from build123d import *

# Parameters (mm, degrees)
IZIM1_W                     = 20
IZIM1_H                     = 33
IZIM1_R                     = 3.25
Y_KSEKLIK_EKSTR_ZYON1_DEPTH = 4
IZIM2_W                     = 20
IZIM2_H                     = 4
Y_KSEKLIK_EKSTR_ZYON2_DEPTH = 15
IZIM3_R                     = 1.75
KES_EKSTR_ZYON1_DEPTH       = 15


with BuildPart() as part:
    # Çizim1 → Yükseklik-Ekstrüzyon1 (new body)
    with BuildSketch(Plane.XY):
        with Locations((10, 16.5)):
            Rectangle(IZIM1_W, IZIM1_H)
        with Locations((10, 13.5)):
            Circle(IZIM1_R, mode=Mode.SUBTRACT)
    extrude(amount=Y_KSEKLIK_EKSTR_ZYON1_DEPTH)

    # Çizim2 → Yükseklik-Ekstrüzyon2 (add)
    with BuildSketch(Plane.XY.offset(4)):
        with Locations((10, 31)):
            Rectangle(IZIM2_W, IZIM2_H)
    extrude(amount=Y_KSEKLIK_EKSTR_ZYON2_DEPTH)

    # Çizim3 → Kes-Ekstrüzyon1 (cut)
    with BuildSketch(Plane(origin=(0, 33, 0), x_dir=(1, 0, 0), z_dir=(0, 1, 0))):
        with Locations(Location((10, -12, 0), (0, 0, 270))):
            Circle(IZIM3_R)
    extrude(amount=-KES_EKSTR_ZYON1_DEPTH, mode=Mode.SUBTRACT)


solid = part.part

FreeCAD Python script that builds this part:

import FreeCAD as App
import Part
import Sketcher

V = App.Vector
Q = App.Units.Quantity

doc = App.newDocument("Part")
body = doc.addObject("PartDesign::Body", "Body")

# Sketch on XY plane
sketch1 = doc.addObject("Sketcher::SketchObject", "Sketch")
body.addObject(sketch1)
sketch1.AttachmentSupport = (doc.XY_Plane, [""])
sketch1.MapMode = "FlatFace"
sketch1.addGeometry(Part.LineSegment(V(0, 33, 0), V(0, 0, 0)), False)
sketch1.addGeometry(Part.LineSegment(V(0, 0, 0), V(20, 0, 0)), False)
sketch1.addGeometry(Part.LineSegment(V(20, 0, 0), V(20, 33, 0)), False)
sketch1.addGeometry(Part.LineSegment(V(20, 33, 0), V(0, 33, 0)), False)
sketch1.addGeometry(Part.Circle(V(10, 13.5, 0), V(0, 0, 1), 3.25), False)
sketch1.addConstraint(Sketcher.Constraint("Coincident", 0, 2, 1, 1))
sketch1.addConstraint(Sketcher.Constraint("Coincident", 1, 2, 2, 1))
sketch1.addConstraint(Sketcher.Constraint("Coincident", 2, 2, 3, 1))
sketch1.addConstraint(Sketcher.Constraint("Coincident", 3, 2, 0, 1))
sketch1.addConstraint(Sketcher.Constraint("Vertical", 0))
sketch1.addConstraint(Sketcher.Constraint("Horizontal", 1))
sketch1.addConstraint(Sketcher.Constraint("Vertical", 2))
sketch1.addConstraint(Sketcher.Constraint("Horizontal", 3))
sketch1.addConstraint(Sketcher.Constraint("Coincident", 0, 2, -1, 1))
sketch1.addConstraint(Sketcher.Constraint("Diameter", 4, Q("6.5 mm")))
sketch1.addConstraint(Sketcher.Constraint("DistanceX", 1, 1, 1, 2, Q("20 mm")))
sketch1.addConstraint(Sketcher.Constraint("DistanceY", 0, 2, 0, 1, Q("33 mm")))
sketch1.addConstraint(Sketcher.Constraint("DistanceX", -1, 1, 4, 3, Q("10 mm")))
sketch1.addConstraint(Sketcher.Constraint("DistanceY", -1, 1, 4, 3, Q("13.5 mm")))
pad1 = doc.addObject("PartDesign::Pad", "Pad")
body.addObject(pad1)
pad1.Profile = sketch1
pad1.Length = 4

# Sketch on XY plane
sketch2 = doc.addObject("Sketcher::SketchObject", "Sketch001")
body.addObject(sketch2)
sketch2.AttachmentSupport = (doc.XY_Plane, [""])
sketch2.MapMode = "FlatFace"
sketch2.AttachmentOffset = App.Placement(V(0, 0, 4), App.Rotation())
sketch2.addGeometry(Part.LineSegment(V(0, 33, 0), V(0, 29, 0)), False)
sketch2.addGeometry(Part.LineSegment(V(0, 29, 0), V(20, 29, 0)), False)
sketch2.addGeometry(Part.LineSegment(V(20, 29, 0), V(20, 33, 0)), False)
sketch2.addGeometry(Part.LineSegment(V(20, 33, 0), V(0, 33, 0)), False)
sketch2.addConstraint(Sketcher.Constraint("Coincident", 0, 2, 1, 1))
sketch2.addConstraint(Sketcher.Constraint("Coincident", 1, 2, 2, 1))
sketch2.addConstraint(Sketcher.Constraint("Coincident", 2, 2, 3, 1))
sketch2.addConstraint(Sketcher.Constraint("Coincident", 3, 2, 0, 1))
sketch2.addConstraint(Sketcher.Constraint("Vertical", 0))
sketch2.addConstraint(Sketcher.Constraint("Horizontal", 1))
sketch2.addConstraint(Sketcher.Constraint("Vertical", 2))
sketch2.addConstraint(Sketcher.Constraint("Horizontal", 3))
sketch2.addConstraint(Sketcher.Constraint("PointOnObject", 0, 2, -2))
sketch2.addConstraint(Sketcher.Constraint("DistanceX", 1, 1, 1, 2, Q("20 mm")))
sketch2.addConstraint(Sketcher.Constraint("DistanceY", 0, 2, 0, 1, Q("4 mm")))
sketch2.addConstraint(Sketcher.Constraint("DistanceY", -1, 1, 0, 2, Q("29 mm")))
pad2 = doc.addObject("PartDesign::Pad", "Pad001")
body.addObject(pad2)
pad2.Profile = sketch2
pad2.Length = 15

# Sketch on XZ plane
sketch3 = doc.addObject("Sketcher::SketchObject", "Sketch002")
body.addObject(sketch3)
sketch3.AttachmentSupport = (doc.XZ_Plane, [""])
sketch3.MapMode = "FlatFace"
sketch3.AttachmentOffset = App.Placement(V(0, 0, -33), App.Rotation())
sketch3.addGeometry(Part.Circle(V(10, 12, 0), V(0, 0, 1), 1.75), False)
sketch3.addConstraint(Sketcher.Constraint("Diameter", 0, Q("3.5 mm")))
sketch3.addConstraint(Sketcher.Constraint("DistanceX", -1, 1, 0, 3, Q("10 mm")))
sketch3.addConstraint(Sketcher.Constraint("DistanceY", -1, 1, 0, 3, Q("12 mm")))
pocket1 = doc.addObject("PartDesign::Pocket", "Pocket")
body.addObject(pocket1)
pocket1.Profile = sketch3
pocket1.Length = 15
pocket1.Reversed = True

doc.recompute()
